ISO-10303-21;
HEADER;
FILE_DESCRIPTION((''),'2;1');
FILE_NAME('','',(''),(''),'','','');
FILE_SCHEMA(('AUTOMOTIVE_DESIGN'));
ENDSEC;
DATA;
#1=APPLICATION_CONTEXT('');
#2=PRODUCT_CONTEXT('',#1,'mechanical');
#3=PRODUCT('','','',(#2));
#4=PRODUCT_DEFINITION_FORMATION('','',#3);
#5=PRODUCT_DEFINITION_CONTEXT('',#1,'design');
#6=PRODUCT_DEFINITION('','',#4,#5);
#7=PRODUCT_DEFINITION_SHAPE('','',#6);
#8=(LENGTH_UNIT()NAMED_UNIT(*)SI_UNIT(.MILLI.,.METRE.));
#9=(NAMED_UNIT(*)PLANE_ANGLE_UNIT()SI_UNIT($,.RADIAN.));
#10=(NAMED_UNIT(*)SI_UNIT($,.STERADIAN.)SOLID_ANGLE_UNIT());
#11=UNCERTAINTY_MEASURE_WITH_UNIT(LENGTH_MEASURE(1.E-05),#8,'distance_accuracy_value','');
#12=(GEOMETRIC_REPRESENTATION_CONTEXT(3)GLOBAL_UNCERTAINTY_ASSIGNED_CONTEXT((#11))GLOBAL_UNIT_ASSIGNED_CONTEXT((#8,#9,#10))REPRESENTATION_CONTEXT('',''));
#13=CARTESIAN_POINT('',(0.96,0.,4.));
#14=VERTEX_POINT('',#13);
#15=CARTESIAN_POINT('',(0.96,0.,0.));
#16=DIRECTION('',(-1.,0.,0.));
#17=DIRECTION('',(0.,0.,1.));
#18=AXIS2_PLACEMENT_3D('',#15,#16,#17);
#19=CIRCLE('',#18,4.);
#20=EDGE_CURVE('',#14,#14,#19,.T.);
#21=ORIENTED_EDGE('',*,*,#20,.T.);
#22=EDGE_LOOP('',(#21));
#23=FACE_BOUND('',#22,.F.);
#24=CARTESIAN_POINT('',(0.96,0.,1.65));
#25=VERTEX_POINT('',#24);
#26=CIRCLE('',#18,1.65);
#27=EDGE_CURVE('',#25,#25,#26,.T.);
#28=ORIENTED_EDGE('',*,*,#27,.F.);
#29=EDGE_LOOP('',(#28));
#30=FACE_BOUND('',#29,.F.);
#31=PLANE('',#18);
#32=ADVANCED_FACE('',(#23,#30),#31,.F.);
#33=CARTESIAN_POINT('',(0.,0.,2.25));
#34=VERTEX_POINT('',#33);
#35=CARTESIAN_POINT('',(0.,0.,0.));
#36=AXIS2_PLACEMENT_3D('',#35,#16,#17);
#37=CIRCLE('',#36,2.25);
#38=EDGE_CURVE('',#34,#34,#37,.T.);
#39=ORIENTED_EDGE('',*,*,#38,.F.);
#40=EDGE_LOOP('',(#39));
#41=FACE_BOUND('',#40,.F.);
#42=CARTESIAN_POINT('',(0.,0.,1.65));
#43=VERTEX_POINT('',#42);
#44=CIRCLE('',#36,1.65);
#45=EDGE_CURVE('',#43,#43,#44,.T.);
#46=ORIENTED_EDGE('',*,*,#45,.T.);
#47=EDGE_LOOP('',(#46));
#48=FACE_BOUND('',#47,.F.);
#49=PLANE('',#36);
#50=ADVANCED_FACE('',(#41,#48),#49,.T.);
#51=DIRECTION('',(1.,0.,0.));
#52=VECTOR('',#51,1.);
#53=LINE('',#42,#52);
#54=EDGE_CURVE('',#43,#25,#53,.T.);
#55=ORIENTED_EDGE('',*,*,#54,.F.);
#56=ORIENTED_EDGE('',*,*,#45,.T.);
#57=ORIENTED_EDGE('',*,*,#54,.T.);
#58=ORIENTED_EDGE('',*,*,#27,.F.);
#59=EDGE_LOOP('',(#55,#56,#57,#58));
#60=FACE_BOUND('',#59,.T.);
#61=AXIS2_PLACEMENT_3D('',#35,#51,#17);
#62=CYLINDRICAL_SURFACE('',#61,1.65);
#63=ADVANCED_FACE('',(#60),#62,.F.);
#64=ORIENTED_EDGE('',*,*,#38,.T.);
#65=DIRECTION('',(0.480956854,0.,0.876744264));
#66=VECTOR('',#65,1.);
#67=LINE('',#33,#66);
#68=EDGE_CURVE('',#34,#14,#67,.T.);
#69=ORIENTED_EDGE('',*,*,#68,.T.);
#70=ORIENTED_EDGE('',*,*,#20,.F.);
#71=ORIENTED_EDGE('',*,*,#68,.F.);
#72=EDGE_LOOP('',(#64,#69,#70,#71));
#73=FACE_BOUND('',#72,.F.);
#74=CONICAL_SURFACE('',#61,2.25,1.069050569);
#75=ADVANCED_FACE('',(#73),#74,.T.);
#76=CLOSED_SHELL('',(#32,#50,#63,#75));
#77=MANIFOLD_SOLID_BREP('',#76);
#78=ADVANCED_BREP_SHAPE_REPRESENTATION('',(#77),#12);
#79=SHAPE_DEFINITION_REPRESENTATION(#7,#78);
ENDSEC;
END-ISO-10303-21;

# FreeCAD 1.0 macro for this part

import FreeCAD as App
import Part
import Sketcher

V = App.Vector
Q = App.Units.Quantity

doc = App.newDocument("Part")
body = doc.addObject("PartDesign::Body", "Body")

sketch1 = body.newObject("Sketcher::SketchObject", "Sketch")
sketch1.AttachmentSupport = (doc.getObject("XZ_Plane"), [""])
sketch1.MapMode = "FlatFace"
sketch1.addGeometry([
    Part.LineSegment(V(1, 1.6, 0), V(0, 1.6, 0)),
    Part.LineSegment(V(0, 1.6, 0), V(0, 2.2, 0)),
    Part.LineSegment(V(0, 2.2, 0), V(1, 4, 0)),
    Part.LineSegment(V(1, 4, 0), V(1, 1.6, 0)),
], False)
sketch1.addConstraint([
    Sketcher.Constraint("Coincident", 0, 2, 1, 1),
    Sketcher.Constraint("Coincident", 1, 2, 2, 1),
    Sketcher.Constraint("Coincident", 2, 2, 3, 1),
    Sketcher.Constraint("Coincident", 3, 2, 0, 1),
    Sketcher.Constraint("Horizontal", 0),
    Sketcher.Constraint("Vertical", 1),
    Sketcher.Constraint("Vertical", 3),
    Sketcher.Constraint("PointOnObject", 0, 2, -2),
    Sketcher.Constraint("DistanceY", -1, 1, 2, 2, Q("4 mm")),
    Sketcher.Constraint("DistanceX", 0, 2, 0, 1, Q("0.96 mm")),
    Sketcher.Constraint("DistanceY", -1, 1, 0, 2, Q("1.65 mm")),
    Sketcher.Constraint("DistanceY", -1, 1, 1, 2, Q("2.25 mm")),
])
revolution = body.newObject("PartDesign::Revolution", "Revolution")
revolution.Profile = sketch1
revolution.ReferenceAxis = (sketch1, ["H_Axis"])
revolution.Angle = 360

doc.recompute()
